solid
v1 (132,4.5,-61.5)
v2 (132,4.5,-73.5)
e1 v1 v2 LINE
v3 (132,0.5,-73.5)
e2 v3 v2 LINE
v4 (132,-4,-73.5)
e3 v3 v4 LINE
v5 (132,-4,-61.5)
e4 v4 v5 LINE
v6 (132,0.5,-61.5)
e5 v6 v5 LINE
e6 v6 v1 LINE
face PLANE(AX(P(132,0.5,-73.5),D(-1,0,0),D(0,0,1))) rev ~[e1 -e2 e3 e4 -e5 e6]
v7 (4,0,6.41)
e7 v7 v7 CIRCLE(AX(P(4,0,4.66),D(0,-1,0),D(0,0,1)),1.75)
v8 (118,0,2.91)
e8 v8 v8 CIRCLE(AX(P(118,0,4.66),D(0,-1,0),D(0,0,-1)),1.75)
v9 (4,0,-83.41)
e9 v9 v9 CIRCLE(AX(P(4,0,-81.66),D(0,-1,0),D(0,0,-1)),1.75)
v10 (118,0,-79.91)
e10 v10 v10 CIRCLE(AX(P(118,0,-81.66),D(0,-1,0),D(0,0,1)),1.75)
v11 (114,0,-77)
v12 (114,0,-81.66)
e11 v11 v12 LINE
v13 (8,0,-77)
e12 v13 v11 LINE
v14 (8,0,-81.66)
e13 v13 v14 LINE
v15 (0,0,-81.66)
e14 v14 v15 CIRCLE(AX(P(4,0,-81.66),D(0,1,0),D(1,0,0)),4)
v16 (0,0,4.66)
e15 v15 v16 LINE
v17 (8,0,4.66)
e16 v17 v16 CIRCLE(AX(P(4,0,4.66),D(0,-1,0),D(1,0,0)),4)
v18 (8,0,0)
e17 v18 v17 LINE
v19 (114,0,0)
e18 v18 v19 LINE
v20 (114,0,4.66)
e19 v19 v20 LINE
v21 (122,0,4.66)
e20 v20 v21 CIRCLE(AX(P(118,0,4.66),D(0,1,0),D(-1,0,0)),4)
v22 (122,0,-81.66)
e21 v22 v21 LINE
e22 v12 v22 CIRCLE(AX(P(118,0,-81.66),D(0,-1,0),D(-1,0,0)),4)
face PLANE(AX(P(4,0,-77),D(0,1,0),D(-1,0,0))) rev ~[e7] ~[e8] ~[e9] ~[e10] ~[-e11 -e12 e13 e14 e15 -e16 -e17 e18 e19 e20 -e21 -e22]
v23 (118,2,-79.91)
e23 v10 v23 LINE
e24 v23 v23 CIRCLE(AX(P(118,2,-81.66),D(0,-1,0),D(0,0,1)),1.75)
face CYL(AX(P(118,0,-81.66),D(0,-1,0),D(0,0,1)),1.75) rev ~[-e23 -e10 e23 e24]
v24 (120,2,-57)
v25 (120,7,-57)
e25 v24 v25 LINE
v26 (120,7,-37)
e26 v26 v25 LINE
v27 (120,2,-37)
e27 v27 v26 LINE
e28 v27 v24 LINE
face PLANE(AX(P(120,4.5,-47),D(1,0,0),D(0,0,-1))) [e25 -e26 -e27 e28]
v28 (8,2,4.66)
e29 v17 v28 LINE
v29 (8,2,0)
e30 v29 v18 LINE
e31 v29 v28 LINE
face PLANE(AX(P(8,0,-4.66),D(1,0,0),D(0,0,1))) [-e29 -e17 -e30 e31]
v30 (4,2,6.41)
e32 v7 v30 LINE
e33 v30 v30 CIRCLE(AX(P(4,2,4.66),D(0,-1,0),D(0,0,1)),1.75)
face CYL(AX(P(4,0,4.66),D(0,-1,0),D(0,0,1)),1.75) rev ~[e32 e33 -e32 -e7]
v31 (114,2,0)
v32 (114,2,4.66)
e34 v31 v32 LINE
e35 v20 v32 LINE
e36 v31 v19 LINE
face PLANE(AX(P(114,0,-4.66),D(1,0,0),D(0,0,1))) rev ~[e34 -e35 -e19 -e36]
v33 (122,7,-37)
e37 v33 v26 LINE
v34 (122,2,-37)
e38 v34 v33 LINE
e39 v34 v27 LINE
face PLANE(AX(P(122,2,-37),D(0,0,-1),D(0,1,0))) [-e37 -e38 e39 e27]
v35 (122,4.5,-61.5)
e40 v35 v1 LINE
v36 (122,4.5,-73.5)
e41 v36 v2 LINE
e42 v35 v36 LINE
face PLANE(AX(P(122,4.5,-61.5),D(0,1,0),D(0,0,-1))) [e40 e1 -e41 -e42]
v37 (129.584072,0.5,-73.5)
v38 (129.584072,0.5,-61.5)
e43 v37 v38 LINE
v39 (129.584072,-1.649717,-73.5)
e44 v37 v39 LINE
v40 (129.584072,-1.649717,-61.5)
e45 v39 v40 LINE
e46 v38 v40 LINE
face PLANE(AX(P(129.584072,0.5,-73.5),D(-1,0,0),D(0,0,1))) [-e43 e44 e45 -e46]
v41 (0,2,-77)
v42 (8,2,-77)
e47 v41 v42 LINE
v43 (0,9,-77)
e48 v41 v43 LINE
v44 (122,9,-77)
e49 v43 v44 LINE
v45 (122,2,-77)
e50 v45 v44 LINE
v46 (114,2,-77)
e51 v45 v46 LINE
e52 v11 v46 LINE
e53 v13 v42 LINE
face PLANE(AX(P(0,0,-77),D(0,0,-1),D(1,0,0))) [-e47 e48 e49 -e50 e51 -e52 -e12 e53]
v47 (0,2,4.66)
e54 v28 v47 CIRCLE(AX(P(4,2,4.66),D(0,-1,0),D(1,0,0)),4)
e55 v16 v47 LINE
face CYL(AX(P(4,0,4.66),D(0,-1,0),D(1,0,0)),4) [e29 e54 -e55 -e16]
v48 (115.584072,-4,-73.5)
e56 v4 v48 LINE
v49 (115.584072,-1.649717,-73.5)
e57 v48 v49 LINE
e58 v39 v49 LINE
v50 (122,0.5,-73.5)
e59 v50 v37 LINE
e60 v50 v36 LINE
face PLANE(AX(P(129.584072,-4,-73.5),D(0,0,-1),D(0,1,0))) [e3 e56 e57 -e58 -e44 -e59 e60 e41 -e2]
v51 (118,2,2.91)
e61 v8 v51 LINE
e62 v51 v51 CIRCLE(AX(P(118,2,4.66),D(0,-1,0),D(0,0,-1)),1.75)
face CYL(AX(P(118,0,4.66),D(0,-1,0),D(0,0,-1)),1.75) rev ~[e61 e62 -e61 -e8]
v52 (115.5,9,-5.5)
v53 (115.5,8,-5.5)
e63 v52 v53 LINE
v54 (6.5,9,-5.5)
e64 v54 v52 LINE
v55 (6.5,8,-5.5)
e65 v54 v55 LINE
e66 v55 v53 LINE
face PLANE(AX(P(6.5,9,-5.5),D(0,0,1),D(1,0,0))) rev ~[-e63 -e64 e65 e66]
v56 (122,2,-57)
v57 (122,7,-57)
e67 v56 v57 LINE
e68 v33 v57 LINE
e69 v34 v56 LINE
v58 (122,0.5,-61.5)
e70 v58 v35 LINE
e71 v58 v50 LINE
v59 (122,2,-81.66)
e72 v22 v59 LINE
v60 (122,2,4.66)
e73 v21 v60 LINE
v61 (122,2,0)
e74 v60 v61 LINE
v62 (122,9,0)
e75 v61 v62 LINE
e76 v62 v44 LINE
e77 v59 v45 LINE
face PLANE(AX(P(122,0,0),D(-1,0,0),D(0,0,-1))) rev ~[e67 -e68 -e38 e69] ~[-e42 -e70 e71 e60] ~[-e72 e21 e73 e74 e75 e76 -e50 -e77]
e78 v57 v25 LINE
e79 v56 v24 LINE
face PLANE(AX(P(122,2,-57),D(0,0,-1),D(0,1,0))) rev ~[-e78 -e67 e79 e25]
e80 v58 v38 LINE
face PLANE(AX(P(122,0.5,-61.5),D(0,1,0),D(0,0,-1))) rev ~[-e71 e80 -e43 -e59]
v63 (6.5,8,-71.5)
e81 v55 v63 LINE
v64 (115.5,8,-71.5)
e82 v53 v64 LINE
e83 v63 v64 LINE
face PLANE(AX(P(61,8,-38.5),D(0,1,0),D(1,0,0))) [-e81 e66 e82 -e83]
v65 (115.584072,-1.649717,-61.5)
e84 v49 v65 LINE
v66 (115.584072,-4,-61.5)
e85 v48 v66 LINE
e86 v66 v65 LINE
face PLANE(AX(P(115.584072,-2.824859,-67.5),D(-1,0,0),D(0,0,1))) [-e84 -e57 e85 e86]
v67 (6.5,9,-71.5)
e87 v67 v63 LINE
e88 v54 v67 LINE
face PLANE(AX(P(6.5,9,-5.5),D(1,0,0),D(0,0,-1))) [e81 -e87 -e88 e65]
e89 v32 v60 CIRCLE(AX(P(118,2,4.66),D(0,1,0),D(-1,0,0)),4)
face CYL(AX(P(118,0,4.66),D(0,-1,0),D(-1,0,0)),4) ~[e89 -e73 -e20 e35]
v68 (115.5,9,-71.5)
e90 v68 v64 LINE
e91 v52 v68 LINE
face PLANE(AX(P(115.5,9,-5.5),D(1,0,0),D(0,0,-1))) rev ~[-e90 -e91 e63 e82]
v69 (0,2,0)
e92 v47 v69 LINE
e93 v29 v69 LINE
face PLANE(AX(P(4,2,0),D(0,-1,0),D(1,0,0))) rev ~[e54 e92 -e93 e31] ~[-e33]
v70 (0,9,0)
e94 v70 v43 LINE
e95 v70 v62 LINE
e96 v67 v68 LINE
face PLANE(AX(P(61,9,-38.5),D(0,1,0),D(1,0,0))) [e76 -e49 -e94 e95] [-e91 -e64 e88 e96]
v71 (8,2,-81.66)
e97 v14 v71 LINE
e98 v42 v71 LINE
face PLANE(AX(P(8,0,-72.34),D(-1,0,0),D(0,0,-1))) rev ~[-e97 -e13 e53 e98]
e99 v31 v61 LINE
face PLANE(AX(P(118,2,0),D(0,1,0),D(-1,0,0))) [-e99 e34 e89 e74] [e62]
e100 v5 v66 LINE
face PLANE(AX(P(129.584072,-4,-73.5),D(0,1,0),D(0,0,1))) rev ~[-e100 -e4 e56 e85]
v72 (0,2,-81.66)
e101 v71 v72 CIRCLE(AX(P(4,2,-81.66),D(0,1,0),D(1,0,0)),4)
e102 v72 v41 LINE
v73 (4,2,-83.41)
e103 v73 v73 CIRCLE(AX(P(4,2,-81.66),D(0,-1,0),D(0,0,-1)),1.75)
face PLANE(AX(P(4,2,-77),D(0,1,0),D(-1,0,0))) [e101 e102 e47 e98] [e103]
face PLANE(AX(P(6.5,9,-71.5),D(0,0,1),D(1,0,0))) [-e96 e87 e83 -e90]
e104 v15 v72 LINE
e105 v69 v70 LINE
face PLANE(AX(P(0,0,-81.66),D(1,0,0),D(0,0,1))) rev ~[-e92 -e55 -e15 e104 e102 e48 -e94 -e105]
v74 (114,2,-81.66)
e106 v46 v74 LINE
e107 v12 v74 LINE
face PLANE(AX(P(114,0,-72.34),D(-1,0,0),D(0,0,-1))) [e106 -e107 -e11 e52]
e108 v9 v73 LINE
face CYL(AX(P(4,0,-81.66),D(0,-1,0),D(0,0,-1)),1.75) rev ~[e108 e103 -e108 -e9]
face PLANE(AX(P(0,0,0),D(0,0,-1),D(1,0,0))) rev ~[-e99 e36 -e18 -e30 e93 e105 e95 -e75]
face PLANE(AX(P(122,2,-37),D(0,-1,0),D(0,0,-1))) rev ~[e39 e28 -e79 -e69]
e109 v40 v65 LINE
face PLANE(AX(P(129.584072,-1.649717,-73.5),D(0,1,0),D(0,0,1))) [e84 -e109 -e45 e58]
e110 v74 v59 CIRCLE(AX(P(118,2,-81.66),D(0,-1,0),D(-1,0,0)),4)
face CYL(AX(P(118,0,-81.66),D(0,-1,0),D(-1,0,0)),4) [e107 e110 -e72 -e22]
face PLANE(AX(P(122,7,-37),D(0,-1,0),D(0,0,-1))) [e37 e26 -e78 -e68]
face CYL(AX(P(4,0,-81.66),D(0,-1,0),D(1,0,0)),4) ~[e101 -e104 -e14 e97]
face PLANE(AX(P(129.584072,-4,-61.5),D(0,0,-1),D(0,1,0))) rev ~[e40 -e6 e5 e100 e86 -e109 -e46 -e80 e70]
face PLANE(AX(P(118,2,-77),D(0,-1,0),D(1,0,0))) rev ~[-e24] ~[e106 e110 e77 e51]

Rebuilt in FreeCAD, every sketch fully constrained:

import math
import FreeCAD as App
import Part
import Sketcher
Q = App.Units.Quantity


def add_polygon(sketch, points):
    """Adds a closed chain of lines whose ends are joined by coincident constraints."""
    first, n = sketch.GeometryCount, len(points)
    for a, b in zip(points, points[1:] + points[:1]):
        sketch.addGeometry(Part.LineSegment(App.Vector(*a, 0), App.Vector(*b, 0)), False)
    for i in range(n):
        sketch.addConstraint(Sketcher.Constraint("Coincident", first + i, 2, first + (i + 1) % n, 1))

doc = App.newDocument("Part")
body = doc.addObject("PartDesign::Body", "Body")

# Sketch on XZ plane
sketch1 = body.newObject("Sketcher::SketchObject", "Sketch")
sketch1.AttachmentSupport = (doc.getObject("XZ_Plane"), [""])
sketch1.MapMode = "FlatFace"
add_polygon(sketch1, [(0, -77), (0, 0), (122, 0), (122, -77)])  # lines 0-3
sketch1.addConstraint([
    Sketcher.Constraint("Vertical", 0),
    Sketcher.Constraint("Horizontal", 1),
    Sketcher.Constraint("Vertical", 2),
    Sketcher.Constraint("Horizontal", 3),
    Sketcher.Constraint("Coincident", 0, 2, -1, 1),
    Sketcher.Constraint("DistanceX", 1, 1, 1, 2, Q("122 mm")),
    Sketcher.Constraint("DistanceY", 0, 1, 0, 2, Q("77 mm")),
])
pad1 = body.newObject("PartDesign::Pad", "Pad")
pad1.Profile = sketch1
pad1.Length = 9
pad1.Reversed = True

# Sketch on XZ plane
sketch2 = body.newObject("Sketcher::SketchObject", "Sketch001")
sketch2.AttachmentSupport = (doc.getObject("XZ_Plane"), [""])
sketch2.MapMode = "FlatFace"
sketch2.AttachmentOffset = App.Placement(App.Vector(0, 0, -9), App.Rotation())
add_polygon(sketch2, [(6.5, -71.5), (6.5, -5.5), (115.5, -5.5), (115.5, -71.5)])  # lines 0-3
sketch2.addConstraint([
    Sketcher.Constraint("Vertical", 0),
    Sketcher.Constraint("Horizontal", 1),
    Sketcher.Constraint("Vertical", 2),
    Sketcher.Constraint("Horizontal", 3),
    Sketcher.Constraint("DistanceX", 1, 1, 1, 2, Q("109 mm")),
    Sketcher.Constraint("DistanceY", 0, 1, 0, 2, Q("66 mm")),
    Sketcher.Constraint("DistanceX", -1, 1, 0, 2, Q("6.5 mm")),
    Sketcher.Constraint("DistanceY", 0, 2, -1, 1, Q("5.5 mm")),
])
pocket1 = body.newObject("PartDesign::Pocket", "Pocket")
pocket1.Profile = sketch2
pocket1.Length = 1
pocket1.Reversed = True

# Sketch on XZ plane
sketch3 = body.newObject("Sketcher::SketchObject", "Sketch002")
sketch3.AttachmentSupport = (doc.getObject("XZ_Plane"), [""])
sketch3.MapMode = "FlatFace"
sketch3.addGeometry([
    Part.LineSegment(App.Vector(0, -72.34, 0), App.Vector(0, -81.66, 0)),  # 0
    Part.ArcOfCircle(Part.Circle(App.Vector(4, -81.66, 0), App.Vector(0, 0, 1), 4), math.radians(180), math.radians(360)),  # 1
    Part.LineSegment(App.Vector(8, -81.66, 0), App.Vector(8, -72.34, 0)),  # 2
    Part.ArcOfCircle(Part.Circle(App.Vector(4, -72.34, 0), App.Vector(0, 0, 1), 4), math.radians(0), math.radians(180)),  # 3
    Part.LineSegment(App.Vector(122, -81.66, 0), App.Vector(122, -72.34, 0)),  # 4
    Part.ArcOfCircle(Part.Circle(App.Vector(118, -72.34, 0), App.Vector(0, 0, 1), 4), math.radians(0), math.radians(180)),  # 5
    Part.LineSegment(App.Vector(114, -72.34, 0), App.Vector(114, -81.66, 0)),  # 6
    Part.ArcOfCircle(Part.Circle(App.Vector(118, -81.66, 0), App.Vector(0, 0, 1), 4), math.radians(180), math.radians(360)),  # 7
    Part.LineSegment(App.Vector(0, 4.66, 0), App.Vector(0, -4.66, 0)),  # 8
    Part.ArcOfCircle(Part.Circle(App.Vector(4, -4.66, 0), App.Vector(0, 0, 1), 4), math.radians(180), math.radians(360)),  # 9
    Part.LineSegment(App.Vector(8, -4.66, 0), App.Vector(8, 4.66, 0)),  # 10
    Part.ArcOfCircle(Part.Circle(App.Vector(4, 4.66, 0), App.Vector(0, 0, 1), 4), math.radians(0), math.radians(180)),  # 11
    Part.LineSegment(App.Vector(122, -4.66, 0), App.Vector(122, 4.66, 0)),  # 12
    Part.ArcOfCircle(Part.Circle(App.Vector(118, 4.66, 0), App.Vector(0, 0, 1), 4), math.radians(0), math.radians(180)),  # 13
    Part.LineSegment(App.Vector(114, 4.66, 0), App.Vector(114, -4.66, 0)),  # 14
    Part.ArcOfCircle(Part.Circle(App.Vector(118, -4.66, 0), App.Vector(0, 0, 1), 4), math.radians(180), math.radians(360)),  # 15
], False)
sketch3.addConstraint([
    Sketcher.Constraint("Tangent", 0, 2, 1, 1),
    Sketcher.Constraint("Tangent", 1, 2, 2, 1),
    Sketcher.Constraint("Tangent", 2, 2, 3, 1),
    Sketcher.Constraint("Tangent", 3, 2, 0, 1),
    Sketcher.Constraint("Tangent", 4, 2, 5, 1),
    Sketcher.Constraint("Tangent", 5, 2, 6, 1),
    Sketcher.Constraint("Tangent", 6, 2, 7, 1),
    Sketcher.Constraint("Tangent", 7, 2, 4, 1),
    Sketcher.Constraint("Tangent", 8, 2, 9, 1),
    Sketcher.Constraint("Tangent", 9, 2, 10, 1),
    Sketcher.Constraint("Tangent", 10, 2, 11, 1),
    Sketcher.Constraint("Tangent", 11, 2, 8, 1),
    Sketcher.Constraint("Tangent", 12, 2, 13, 1),
    Sketcher.Constraint("Tangent", 13, 2, 14, 1),
    Sketcher.Constraint("Tangent", 14, 2, 15, 1),
    Sketcher.Constraint("Tangent", 15, 2, 12, 1),
    Sketcher.Constraint("Vertical", 0),
    Sketcher.Constraint("Vertical", 2),
    Sketcher.Constraint("Vertical", 4),
    Sketcher.Constraint("Vertical", 6),
    Sketcher.Constraint("Vertical", 8),
    Sketcher.Constraint("Vertical", 10),
    Sketcher.Constraint("Vertical", 12),
    Sketcher.Constraint("Vertical", 14),
    Sketcher.Constraint("Equal", 3, 5),
    Sketcher.Constraint("Equal", 7, 9),
    Sketcher.Constraint("Equal", 11, 13),
    Sketcher.Constraint("Symmetric", 8, 2, 11, 2, -1, 1),
    Sketcher.Constraint("PointOnObject", 0, 2, -2),
    Sketcher.Constraint("Horizontal", 3, 3, 5, 3),
    Sketcher.Constraint("Horizontal", 1, 3, 7, 3),
    Sketcher.Constraint("Horizontal", 11, 3, 13, 3),
    Sketcher.Constraint("Horizontal", 9, 3, 15, 3),
    Sketcher.Constraint("Vertical", 7, 3, 13, 3),
    Sketcher.Constraint("Equal", 6, 8),
    Sketcher.Constraint("Radius", 1, Q("4 mm")),
    Sketcher.Constraint("DistanceX", -1, 1, 5, 3, Q("118 mm")),
    Sketcher.Constraint("DistanceY", 1, 3, 9, 3, Q("77 mm")),
    Sketcher.Constraint("DistanceY", 0, 2, 0, 1, Q("9.32 mm")),
])
pad2 = body.newObject("PartDesign::Pad", "Pad001")
pad2.Profile = sketch3
pad2.Length = 2
pad2.Reversed = True

# Sketch on XZ plane
sketch4 = body.newObject("Sketcher::SketchObject", "Sketch003")
sketch4.AttachmentSupport = (doc.getObject("XZ_Plane"), [""])
sketch4.MapMode = "FlatFace"
sketch4.addGeometry([
    Part.Circle(App.Vector(4, -81.66, 0), App.Vector(0, 0, 1), 1.75),
    Part.Circle(App.Vector(118, -81.66, 0), App.Vector(0, 0, 1), 1.75),
    Part.Circle(App.Vector(4, 4.66, 0), App.Vector(0, 0, 1), 1.75),
    Part.Circle(App.Vector(118, 4.66, 0), App.Vector(0, 0, 1), 1.75),
], False)
sketch4.addConstraint([
    Sketcher.Constraint("Equal", 0, 1),
    Sketcher.Constraint("Equal", 1, 2),
    Sketcher.Constraint("Equal", 2, 3),
    Sketcher.Constraint("Horizontal", 0, 3, 1, 3),
    Sketcher.Constraint("Horizontal", 2, 3, 3, 3),
    Sketcher.Constraint("Vertical", 0, 3, 2, 3),
    Sketcher.Constraint("Vertical", 1, 3, 3, 3),
    Sketcher.Constraint("Diameter", 0, Q("3.5 mm")),
    Sketcher.Constraint("DistanceX", -1, 1, 0, 3, Q("4 mm")),
    Sketcher.Constraint("DistanceX", -1, 1, 1, 3, Q("118 mm")),
    Sketcher.Constraint("DistanceY", 0, 3, -1, 1, Q("81.66 mm")),
    Sketcher.Constraint("DistanceY", -1, 1, 2, 3, Q("4.66 mm")),
])
pocket2 = body.newObject("PartDesign::Pocket", "Pocket001")
pocket2.Profile = sketch4
pocket2.Length = 4

# Sketch on YZ plane
sketch5 = body.newObject("Sketcher::SketchObject", "Sketch004")
sketch5.AttachmentSupport = (doc.getObject("YZ_Plane"), [""])
sketch5.MapMode = "FlatFace"
sketch5.AttachmentOffset = App.Placement(App.Vector(0, 0, 122), App.Rotation())
add_polygon(sketch5, [(4.5, -61.5), (0.5, -61.5), (0.5, -73.5), (4.5, -73.5)])  # lines 0-3
add_polygon(sketch5, [(7, -37), (2, -37), (2, -57), (7, -57)])  # lines 4-7
sketch5.addConstraint([
    Sketcher.Constraint("Horizontal", 0),
    Sketcher.Constraint("Vertical", 1),
    Sketcher.Constraint("Horizontal", 2),
    Sketcher.Constraint("Vertical", 3),
    Sketcher.Constraint("Horizontal", 4),
    Sketcher.Constraint("Vertical", 5),
    Sketcher.Constraint("Horizontal", 6),
    Sketcher.Constraint("Vertical", 7),
    Sketcher.Constraint("DistanceX", 0, 2, 0, 1, Q("4 mm")),
    Sketcher.Constraint("DistanceX", 4, 2, 4, 1, Q("5 mm")),
    Sketcher.Constraint("DistanceY", 1, 2, 1, 1, Q("12 mm")),
    Sketcher.Constraint("DistanceY", 5, 2, 5, 1, Q("20 mm")),
    Sketcher.Constraint("DistanceX", -1, 1, 4, 2, Q("2 mm")),
    Sketcher.Constraint("DistanceY", 4, 2, -1, 1, Q("37 mm")),
    Sketcher.Constraint("DistanceX", -1, 1, 0, 2, Q("0.5 mm")),
    Sketcher.Constraint("DistanceY", 0, 2, -1, 1, Q("61.5 mm")),
])
pocket3 = body.newObject("PartDesign::Pocket", "Pocket002")
pocket3.Profile = sketch5
pocket3.Length = 2
body2 = doc.addObject("PartDesign::Body", "Body001")

# Sketch on YZ plane
sketch6 = body2.newObject("Sketcher::SketchObject", "Sketch005")
sketch6.AttachmentSupport = (doc.getObject("YZ_Plane001"), [""])
sketch6.MapMode = "FlatFace"
sketch6.AttachmentOffset = App.Placement(App.Vector(0, 0, 122), App.Rotation())
add_polygon(sketch6, [(4.5, -61.5), (0.5, -61.5), (0.5, -73.5), (4.5, -73.5)])  # lines 0-3
sketch6.addConstraint([
    Sketcher.Constraint("Horizontal", 0),
    Sketcher.Constraint("Vertical", 1),
    Sketcher.Constraint("Horizontal", 2),
    Sketcher.Constraint("Vertical", 3),
    Sketcher.Constraint("DistanceX", 0, 2, 0, 1, Q("4 mm")),
    Sketcher.Constraint("DistanceY", 1, 2, 1, 1, Q("12 mm")),
    Sketcher.Constraint("DistanceX", -1, 1, 0, 2, Q("0.5 mm")),
    Sketcher.Constraint("DistanceY", 0, 2, -1, 1, Q("61.5 mm")),
])
pad3 = body2.newObject("PartDesign::Pad", "Pad002")
pad3.Profile = sketch6
pad3.Length = 10

# Sketch on XZ plane
sketch7 = body2.newObject("Sketcher::SketchObject", "Sketch006")
sketch7.AttachmentSupport = (doc.getObject("XZ_Plane001"), [""])
sketch7.MapMode = "FlatFace"
sketch7.AttachmentOffset = App.Placement(App.Vector(0, 0, -0.5), App.Rotation())
add_polygon(sketch7, [(129.584072, -61.5), (129.584072, -73.5), (132, -73.5), (132, -61.5)])  # lines 0-3
sketch7.addConstraint([
    Sketcher.Constraint("Vertical", 0),
    Sketcher.Constraint("Horizontal", 1),
    Sketcher.Constraint("Vertical", 2),
    Sketcher.Constraint("Horizontal", 3),
    Sketcher.Constraint("DistanceY", 0, 2, 0, 1, Q("12 mm")),
    Sketcher.Constraint("DistanceX", -1, 1, 1, 2, Q("132 mm")),
    Sketcher.Constraint("DistanceY", 0, 2, -1, 1, Q("73.5 mm")),
    Sketcher.Constraint("DistanceX", 1, 1, 1, 2, Q("2.415928 mm")),
])
pad4 = body2.newObject("PartDesign::Pad", "Pad003")
pad4.Profile = sketch7
pad4.Length = 4.5

# Sketch on YZ plane
sketch8 = body2.newObject("Sketcher::SketchObject", "Sketch007")
sketch8.AttachmentSupport = (doc.getObject("YZ_Plane001"), [""])
sketch8.MapMode = "FlatFace"
sketch8.AttachmentOffset = App.Placement(App.Vector(0, 0, 129.584072), App.Rotation())
add_polygon(sketch8, [(-1.649717, -73.5), (-4, -73.5), (-4, -61.5), (-1.649717, -61.5)])  # lines 0-3
sketch8.addConstraint([
    Sketcher.Constraint("Horizontal", 0),
    Sketcher.Constraint("Vertical", 1),
    Sketcher.Constraint("Horizontal", 2),
    Sketcher.Constraint("Vertical", 3),
    Sketcher.Constraint("DistanceY", 1, 1, 1, 2, Q("12 mm")),
    Sketcher.Constraint("DistanceX", 0, 2, -1, 1, Q("4 mm")),
    Sketcher.Constraint("DistanceY", 0, 2, -1, 1, Q("73.5 mm")),
    Sketcher.Constraint("DistanceX", 0, 2, 0, 1, Q("2.350283 mm")),
])
pad5 = body2.newObject("PartDesign::Pad", "Pad004")
pad5.Profile = sketch8
pad5.Length = 14
pad5.Reversed = True
body.AllowCompound = True
doc.recompute()

boolean = body.newObject("PartDesign::Boolean", "Boolean")
boolean.Type = "Fuse"
boolean.addObjects([body2])

# Sketch on YZ plane
sketch9 = body.newObject("Sketcher::SketchObject", "Sketch008")
sketch9.AttachmentSupport = (doc.getObject("YZ_Plane"), [""])
sketch9.MapMode = "FlatFace"
sketch9.AttachmentOffset = App.Placement(App.Vector(0, 0, 122), App.Rotation())
add_polygon(sketch9, [(4.5, -61.5), (0.5, -61.5), (0.5, -73.5), (4.5, -73.5)])  # lines 0-3
sketch9.addConstraint([
    Sketcher.Constraint("Horizontal", 0),
    Sketcher.Constraint("Vertical", 1),
    Sketcher.Constraint("Horizontal", 2),
    Sketcher.Constraint("Vertical", 3),
    Sketcher.Constraint("DistanceX", 0, 2, 0, 1, Q("4 mm")),
    Sketcher.Constraint("DistanceY", 1, 2, 1, 1, Q("12 mm")),
    Sketcher.Constraint("DistanceX", -1, 1, 0, 2, Q("0.5 mm")),
    Sketcher.Constraint("DistanceY", 0, 2, -1, 1, Q("61.5 mm")),
])
pad6 = body.newObject("PartDesign::Pad", "Pad005")
pad6.Profile = sketch9
pad6.Length = 14
pad6.Reversed = True

doc.recompute()
